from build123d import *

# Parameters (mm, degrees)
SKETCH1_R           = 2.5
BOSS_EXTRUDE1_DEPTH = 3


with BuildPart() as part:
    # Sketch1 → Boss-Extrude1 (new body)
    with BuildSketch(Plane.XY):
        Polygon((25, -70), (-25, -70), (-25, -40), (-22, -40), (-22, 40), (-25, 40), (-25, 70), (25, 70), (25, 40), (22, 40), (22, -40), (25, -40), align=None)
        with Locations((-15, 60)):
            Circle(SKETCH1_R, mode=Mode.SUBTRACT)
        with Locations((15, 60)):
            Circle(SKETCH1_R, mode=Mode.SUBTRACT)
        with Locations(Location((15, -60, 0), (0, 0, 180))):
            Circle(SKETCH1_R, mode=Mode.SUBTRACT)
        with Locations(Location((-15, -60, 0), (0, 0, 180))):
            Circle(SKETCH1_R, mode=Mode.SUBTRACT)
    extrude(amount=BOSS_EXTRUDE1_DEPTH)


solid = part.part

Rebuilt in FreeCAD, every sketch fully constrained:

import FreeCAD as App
import Part
import Sketcher

V = App.Vector


def add_polygon(sketch, points):
    """Adds a closed chain of lines whose ends are joined by coincident constraints."""
    first, n = sketch.GeometryCount, len(points)
    for a, b in zip(points, points[1:] + points[:1]):
        sketch.addGeometry(Part.LineSegment(App.Vector(*a, 0), App.Vector(*b, 0)), False)
    for i in range(n):
        sketch.addConstraint(Sketcher.Constraint("Coincident", first + i, 2, first + (i + 1) % n, 1))

doc = App.newDocument("Part")
body = doc.addObject("PartDesign::Body", "Body")

# Sketch on XY plane
sketch1 = body.newObject("Sketcher::SketchObject", "Sketch")
sketch1.AttachmentSupport = (doc.getObject("XY_Plane"), [""])
sketch1.MapMode = "FlatFace"
add_polygon(sketch1, [(-25, -70), (25, -70), (25, -40), (22, -40), (22, 40), (25, 40), (25, 70), (-25, 70), (-25, 40), (-22, 40), (-22, -40), (-25, -40)])  # lines 0-11
sketch1.addGeometry(Part.Circle(V(15, -60, 0), V(0, 0, 1), 2.5), False)  # 12
sketch1.addGeometry(Part.Circle(V(-15, -60, 0), V(0, 0, 1), 2.5), False)  # 13
sketch1.addGeometry(Part.Circle(V(15, 60, 0), V(0, 0, 1), 2.5), False)  # 14
sketch1.addGeometry(Part.Circle(V(-15, 60, 0), V(0, 0, 1), 2.5), False)  # 15
sketch1.addConstraint(Sketcher.Constraint("Horizontal", 0))
sketch1.addConstraint(Sketcher.Constraint("Vertical", 1))
sketch1.addConstraint(Sketcher.Constraint("Horizontal", 2))
sketch1.addConstraint(Sketcher.Constraint("Vertical", 3))
sketch1.addConstraint(Sketcher.Constraint("Horizontal", 4))
sketch1.addConstraint(Sketcher.Constraint("Vertical", 5))
sketch1.addConstraint(Sketcher.Constraint("Horizontal", 6))
sketch1.addConstraint(Sketcher.Constraint("Vertical", 7))
sketch1.addConstraint(Sketcher.Constraint("Horizontal", 8))
sketch1.addConstraint(Sketcher.Constraint("Vertical", 9))
sketch1.addConstraint(Sketcher.Constraint("Horizontal", 10))
sketch1.addConstraint(Sketcher.Constraint("Vertical", 11))
sketch1.addConstraint(Sketcher.Constraint("Equal", 12, 13))
sketch1.addConstraint(Sketcher.Constraint("Equal", 13, 14))
sketch1.addConstraint(Sketcher.Constraint("Equal", 14, 15))
sketch1.addConstraint(Sketcher.Constraint("Symmetric", 13, 3, 14, 3, -1, 1))
sketch1.addConstraint(Sketcher.Constraint("Symmetric", 12, 3, 15, 3, -1, 1))
sketch1.addConstraint(Sketcher.Constraint("Symmetric", 0, 2, 6, 2, -1, 1))
sketch1.addConstraint(Sketcher.Constraint("Symmetric", 2, 2, 8, 2, -1, 1))
sketch1.addConstraint(Sketcher.Constraint("Symmetric", 4, 2, 10, 2, -1, 1))
sketch1.addConstraint(Sketcher.Constraint("Symmetric", 12, 3, 13, 3, -2))
sketch1.addConstraint(Sketcher.Constraint("Symmetric", 4, 2, 7, 2, -2))
sketch1.addConstraint(Sketcher.Constraint("Diameter", 12, 5.0))
sketch1.addConstraint(Sketcher.Constraint("DistanceX", 0, 1, 0, 2, 50.0))
sketch1.addConstraint(Sketcher.Constraint("DistanceX", 2, 2, 2, 1, 3.0))
sketch1.addConstraint(Sketcher.Constraint("DistanceY", 1, 1, 1, 2, 30.0))
sketch1.addConstraint(Sketcher.Constraint("DistanceY", 3, 1, 3, 2, 80.0))
sketch1.addConstraint(Sketcher.Constraint("DistanceX", -1, 1, 12, 3, 15.0))
sketch1.addConstraint(Sketcher.Constraint("DistanceY", 12, 3, -1, 1, 60.0))
pad1 = body.newObject("PartDesign::Pad", "Pad")
pad1.Profile = sketch1
pad1.Length = 3

doc.recompute()
